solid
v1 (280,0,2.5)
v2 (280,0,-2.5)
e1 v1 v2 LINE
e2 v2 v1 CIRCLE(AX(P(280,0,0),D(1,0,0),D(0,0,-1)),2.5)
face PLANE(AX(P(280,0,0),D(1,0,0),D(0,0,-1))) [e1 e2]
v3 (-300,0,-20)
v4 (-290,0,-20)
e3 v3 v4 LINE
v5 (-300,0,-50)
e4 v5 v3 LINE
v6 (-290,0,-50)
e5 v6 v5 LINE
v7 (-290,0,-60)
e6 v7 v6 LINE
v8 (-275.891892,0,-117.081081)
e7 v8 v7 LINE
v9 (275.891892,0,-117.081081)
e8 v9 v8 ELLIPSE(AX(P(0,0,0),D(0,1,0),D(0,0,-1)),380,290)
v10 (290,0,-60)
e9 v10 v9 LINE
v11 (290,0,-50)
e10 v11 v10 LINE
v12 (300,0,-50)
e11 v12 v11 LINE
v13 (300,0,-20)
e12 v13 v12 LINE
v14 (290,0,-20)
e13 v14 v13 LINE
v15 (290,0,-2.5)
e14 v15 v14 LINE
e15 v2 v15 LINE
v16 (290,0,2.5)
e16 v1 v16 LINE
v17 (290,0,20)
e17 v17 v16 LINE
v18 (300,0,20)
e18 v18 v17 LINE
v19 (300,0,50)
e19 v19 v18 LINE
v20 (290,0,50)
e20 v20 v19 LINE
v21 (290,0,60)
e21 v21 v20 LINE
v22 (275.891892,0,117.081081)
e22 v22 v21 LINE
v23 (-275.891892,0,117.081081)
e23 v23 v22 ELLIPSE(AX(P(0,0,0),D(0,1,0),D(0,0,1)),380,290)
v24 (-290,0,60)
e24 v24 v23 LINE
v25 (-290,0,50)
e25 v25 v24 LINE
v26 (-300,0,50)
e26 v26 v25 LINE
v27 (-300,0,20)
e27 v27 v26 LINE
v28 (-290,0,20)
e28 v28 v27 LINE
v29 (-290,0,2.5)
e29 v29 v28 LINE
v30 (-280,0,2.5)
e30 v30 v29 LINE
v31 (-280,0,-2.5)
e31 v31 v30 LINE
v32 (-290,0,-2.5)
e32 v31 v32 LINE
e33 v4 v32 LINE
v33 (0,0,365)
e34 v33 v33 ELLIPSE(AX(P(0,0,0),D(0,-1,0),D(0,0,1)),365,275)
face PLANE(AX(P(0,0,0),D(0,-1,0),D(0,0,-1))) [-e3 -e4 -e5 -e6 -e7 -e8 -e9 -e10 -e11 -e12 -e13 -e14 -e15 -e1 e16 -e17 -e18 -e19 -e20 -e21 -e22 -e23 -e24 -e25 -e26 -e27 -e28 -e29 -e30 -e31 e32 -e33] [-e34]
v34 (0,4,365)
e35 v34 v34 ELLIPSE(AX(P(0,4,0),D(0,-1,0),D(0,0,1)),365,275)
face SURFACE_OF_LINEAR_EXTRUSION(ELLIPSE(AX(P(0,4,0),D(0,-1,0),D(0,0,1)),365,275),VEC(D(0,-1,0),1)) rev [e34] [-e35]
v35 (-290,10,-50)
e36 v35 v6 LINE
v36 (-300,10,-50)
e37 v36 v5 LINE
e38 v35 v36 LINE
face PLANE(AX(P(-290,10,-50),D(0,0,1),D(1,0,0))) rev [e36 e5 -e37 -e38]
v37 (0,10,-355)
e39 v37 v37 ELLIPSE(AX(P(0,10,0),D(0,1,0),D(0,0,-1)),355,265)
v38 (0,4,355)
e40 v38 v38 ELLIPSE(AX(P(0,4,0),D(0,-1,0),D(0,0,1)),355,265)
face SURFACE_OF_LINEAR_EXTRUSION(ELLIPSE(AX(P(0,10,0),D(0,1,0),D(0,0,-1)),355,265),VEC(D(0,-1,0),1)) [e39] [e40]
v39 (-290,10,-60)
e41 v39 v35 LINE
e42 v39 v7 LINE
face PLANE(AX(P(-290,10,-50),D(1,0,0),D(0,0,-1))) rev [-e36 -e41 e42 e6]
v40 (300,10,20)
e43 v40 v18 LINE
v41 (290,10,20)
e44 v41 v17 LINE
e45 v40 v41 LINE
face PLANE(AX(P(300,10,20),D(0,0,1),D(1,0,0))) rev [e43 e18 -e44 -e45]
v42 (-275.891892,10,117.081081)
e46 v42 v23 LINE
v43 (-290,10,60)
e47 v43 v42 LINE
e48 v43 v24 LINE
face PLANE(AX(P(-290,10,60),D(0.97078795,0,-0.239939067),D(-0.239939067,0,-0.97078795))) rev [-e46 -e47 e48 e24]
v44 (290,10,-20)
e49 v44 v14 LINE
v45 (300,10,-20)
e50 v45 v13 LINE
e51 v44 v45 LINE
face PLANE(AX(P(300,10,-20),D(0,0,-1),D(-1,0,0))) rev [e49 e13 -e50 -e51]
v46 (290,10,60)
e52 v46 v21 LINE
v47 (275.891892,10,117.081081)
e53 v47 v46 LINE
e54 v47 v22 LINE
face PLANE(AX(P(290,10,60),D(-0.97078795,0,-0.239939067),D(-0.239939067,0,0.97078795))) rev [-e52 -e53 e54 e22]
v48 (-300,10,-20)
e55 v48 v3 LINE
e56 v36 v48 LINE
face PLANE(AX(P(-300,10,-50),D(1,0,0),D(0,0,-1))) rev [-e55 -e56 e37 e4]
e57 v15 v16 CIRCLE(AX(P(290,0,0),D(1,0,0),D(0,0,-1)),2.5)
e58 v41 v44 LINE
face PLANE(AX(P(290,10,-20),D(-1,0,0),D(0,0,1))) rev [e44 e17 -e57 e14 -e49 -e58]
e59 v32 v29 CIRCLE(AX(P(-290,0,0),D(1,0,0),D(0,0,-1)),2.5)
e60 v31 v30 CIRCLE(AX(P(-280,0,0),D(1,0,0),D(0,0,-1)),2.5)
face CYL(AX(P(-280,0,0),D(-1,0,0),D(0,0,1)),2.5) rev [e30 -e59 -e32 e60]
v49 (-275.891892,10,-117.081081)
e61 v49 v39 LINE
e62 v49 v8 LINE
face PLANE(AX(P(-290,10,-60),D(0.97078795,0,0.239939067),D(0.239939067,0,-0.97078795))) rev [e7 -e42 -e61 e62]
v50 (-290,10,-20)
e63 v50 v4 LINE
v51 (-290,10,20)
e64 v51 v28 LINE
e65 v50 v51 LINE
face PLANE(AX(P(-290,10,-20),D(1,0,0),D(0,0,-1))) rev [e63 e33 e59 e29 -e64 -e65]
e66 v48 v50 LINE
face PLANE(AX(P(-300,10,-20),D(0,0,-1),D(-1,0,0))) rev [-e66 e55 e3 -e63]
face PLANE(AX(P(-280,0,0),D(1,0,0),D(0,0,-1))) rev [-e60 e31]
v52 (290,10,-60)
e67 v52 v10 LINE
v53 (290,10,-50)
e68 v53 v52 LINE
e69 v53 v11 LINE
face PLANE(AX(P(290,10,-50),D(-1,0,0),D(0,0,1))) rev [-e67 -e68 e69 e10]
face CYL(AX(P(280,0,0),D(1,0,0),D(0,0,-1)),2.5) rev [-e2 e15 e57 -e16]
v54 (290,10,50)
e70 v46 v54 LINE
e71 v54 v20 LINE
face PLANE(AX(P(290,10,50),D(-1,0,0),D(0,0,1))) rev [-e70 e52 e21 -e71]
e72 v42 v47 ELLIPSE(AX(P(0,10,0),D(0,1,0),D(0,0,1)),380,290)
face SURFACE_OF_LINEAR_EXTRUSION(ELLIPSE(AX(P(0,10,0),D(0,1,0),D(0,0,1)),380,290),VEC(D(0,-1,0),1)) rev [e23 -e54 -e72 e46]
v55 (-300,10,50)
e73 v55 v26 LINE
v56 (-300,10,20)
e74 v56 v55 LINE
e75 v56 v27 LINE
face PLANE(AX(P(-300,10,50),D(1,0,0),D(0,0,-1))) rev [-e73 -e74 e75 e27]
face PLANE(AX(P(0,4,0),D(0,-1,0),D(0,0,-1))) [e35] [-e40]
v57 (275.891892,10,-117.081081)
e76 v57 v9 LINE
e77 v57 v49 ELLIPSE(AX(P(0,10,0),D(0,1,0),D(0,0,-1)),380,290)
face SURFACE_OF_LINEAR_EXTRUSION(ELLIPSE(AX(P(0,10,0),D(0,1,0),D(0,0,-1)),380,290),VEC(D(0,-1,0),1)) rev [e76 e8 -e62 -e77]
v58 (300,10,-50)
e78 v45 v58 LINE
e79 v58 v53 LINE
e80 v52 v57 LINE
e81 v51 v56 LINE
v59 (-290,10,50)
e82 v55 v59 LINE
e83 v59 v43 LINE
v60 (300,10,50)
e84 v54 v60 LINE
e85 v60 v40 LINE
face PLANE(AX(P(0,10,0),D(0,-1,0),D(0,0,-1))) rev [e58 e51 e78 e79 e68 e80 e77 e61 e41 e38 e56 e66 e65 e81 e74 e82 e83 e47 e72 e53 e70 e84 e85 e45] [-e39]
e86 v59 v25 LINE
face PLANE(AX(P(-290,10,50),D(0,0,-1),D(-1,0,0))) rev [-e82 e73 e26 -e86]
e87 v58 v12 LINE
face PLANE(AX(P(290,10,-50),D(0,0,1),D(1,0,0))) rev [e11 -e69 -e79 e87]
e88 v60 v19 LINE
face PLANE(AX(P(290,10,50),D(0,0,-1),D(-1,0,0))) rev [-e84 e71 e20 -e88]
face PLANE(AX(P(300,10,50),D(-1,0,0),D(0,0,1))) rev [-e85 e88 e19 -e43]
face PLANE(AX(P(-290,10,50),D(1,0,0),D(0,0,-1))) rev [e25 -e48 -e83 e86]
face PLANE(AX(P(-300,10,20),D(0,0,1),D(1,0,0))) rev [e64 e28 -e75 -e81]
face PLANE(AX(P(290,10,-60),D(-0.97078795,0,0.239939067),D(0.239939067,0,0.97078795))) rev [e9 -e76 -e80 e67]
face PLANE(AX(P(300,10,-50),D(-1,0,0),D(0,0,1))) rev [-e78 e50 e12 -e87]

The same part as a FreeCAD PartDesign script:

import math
import FreeCAD as App
import Part
import Sketcher

doc = App.newDocument("Part")
body = doc.addObject("PartDesign::Body", "Body")

sketch1 = body.newObject("Sketcher::SketchObject", "Sketch")
sketch1.AttachmentSupport = (doc.getObject("XZ_Plane"), [""])
sketch1.MapMode = "FlatFace"
sketch1.addGeometry([
    Part.LineSegment(App.Vector(-275.891892, -117.081081, 0), App.Vector(-290, -60, 0)),
    Part.LineSegment(App.Vector(-290, -60, 0), App.Vector(-290, -50, 0)),
    Part.LineSegment(App.Vector(-290, -50, 0), App.Vector(-300, -50, 0)),
    Part.LineSegment(App.Vector(-300, -50, 0), App.Vector(-300, -20, 0)),
    Part.LineSegment(App.Vector(-300, -20, 0), App.Vector(-290, -20, 0)),
    Part.LineSegment(App.Vector(-290, -20, 0), App.Vector(-290, 20, 0)),
    Part.LineSegment(App.Vector(-290, 20, 0), App.Vector(-300, 20, 0)),
    Part.LineSegment(App.Vector(-300, 20, 0), App.Vector(-300, 50, 0)),
    Part.LineSegment(App.Vector(-300, 50, 0), App.Vector(-290, 50, 0)),
    Part.LineSegment(App.Vector(-290, 50, 0), App.Vector(-290, 60, 0)),
    Part.LineSegment(App.Vector(-290, 60, 0), App.Vector(-275.891892, 117.081081, 0)),
    Part.BSplineCurve([App.Vector(-275.891892, 117.081081, 0), App.Vector(0, 1233.333333, 0), App.Vector(275.891892, 117.081081, 0)], [3, 3], [5.025592734, 7.54077788], False, 2, [1, 0.308108108, 1], False),
    Part.LineSegment(App.Vector(275.891892, 117.081081, 0), App.Vector(290, 60, 0)),
    Part.LineSegment(App.Vector(290, 60, 0), App.Vector(290, 50, 0)),
    Part.LineSegment(App.Vector(290, 50, 0), App.Vector(300, 50, 0)),
    Part.LineSegment(App.Vector(300, 50, 0), App.Vector(300, 20, 0)),
    Part.LineSegment(App.Vector(300, 20, 0), App.Vector(290, 20, 0)),
    Part.LineSegment(App.Vector(290, 20, 0), App.Vector(290, -20, 0)),
    Part.LineSegment(App.Vector(290, -20, 0), App.Vector(300, -20, 0)),
    Part.LineSegment(App.Vector(300, -20, 0), App.Vector(300, -50, 0)),
    Part.LineSegment(App.Vector(300, -50, 0), App.Vector(290, -50, 0)),
    Part.LineSegment(App.Vector(290, -50, 0), App.Vector(290, -60, 0)),
    Part.LineSegment(App.Vector(290, -60, 0), App.Vector(275.891892, -117.081081, 0)),
    Part.BSplineCurve([App.Vector(275.891892, -117.081081, 0), App.Vector(0, -1233.333333, 0), App.Vector(-275.891892, -117.081081, 0)], [3, 3], [5.025592734, 7.54077788], False, 2, [1, 0.308108108, 1], False),
    Part.Ellipse(App.Vector(0, -355, 0), App.Vector(265, 0, 0), App.Vector(0, 0, 0)),
], False)
sketch1.addConstraint([
    Sketcher.Constraint("Block", 11),
    Sketcher.Constraint("Block", 23),
    Sketcher.Constraint("Block", 24),
    Sketcher.Constraint("Coincident", 0, 2, 1, 1),
    Sketcher.Constraint("Coincident", 1, 2, 2, 1),
    Sketcher.Constraint("Coincident", 2, 2, 3, 1),
    Sketcher.Constraint("Coincident", 3, 2, 4, 1),
    Sketcher.Constraint("Coincident", 4, 2, 5, 1),
    Sketcher.Constraint("Coincident", 5, 2, 6, 1),
    Sketcher.Constraint("Coincident", 6, 2, 7, 1),
    Sketcher.Constraint("Coincident", 7, 2, 8, 1),
    Sketcher.Constraint("Coincident", 8, 2, 9, 1),
    Sketcher.Constraint("Coincident", 9, 2, 10, 1),
    Sketcher.Constraint("Coincident", 10, 2, 11, 1),
    Sketcher.Constraint("Coincident", 11, 2, 12, 1),
    Sketcher.Constraint("Coincident", 12, 2, 13, 1),
    Sketcher.Constraint("Coincident", 13, 2, 14, 1),
    Sketcher.Constraint("Coincident", 14, 2, 15, 1),
    Sketcher.Constraint("Coincident", 15, 2, 16, 1),
    Sketcher.Constraint("Coincident", 16, 2, 17, 1),
    Sketcher.Constraint("Coincident", 17, 2, 18, 1),
    Sketcher.Constraint("Coincident", 18, 2, 19, 1),
    Sketcher.Constraint("Coincident", 19, 2, 20, 1),
    Sketcher.Constraint("Coincident", 20, 2, 21, 1),
    Sketcher.Constraint("Coincident", 21, 2, 22, 1),
    Sketcher.Constraint("Coincident", 22, 2, 23, 1),
    Sketcher.Constraint("Coincident", 23, 2, 0, 1),
    Sketcher.Constraint("Vertical", 1),
    Sketcher.Constraint("Horizontal", 2),
    Sketcher.Constraint("Vertical", 3),
    Sketcher.Constraint("Horizontal", 4),
    Sketcher.Constraint("Vertical", 5),
    Sketcher.Constraint("Horizontal", 6),
    Sketcher.Constraint("Vertical", 7),
    Sketcher.Constraint("Horizontal", 8),
    Sketcher.Constraint("Vertical", 9),
    Sketcher.Constraint("Vertical", 13),
    Sketcher.Constraint("Horizontal", 14),
    Sketcher.Constraint("Vertical", 15),
    Sketcher.Constraint("Horizontal", 16),
    Sketcher.Constraint("Vertical", 17),
    Sketcher.Constraint("Horizontal", 18),
    Sketcher.Constraint("Vertical", 19),
    Sketcher.Constraint("Horizontal", 20),
    Sketcher.Constraint("Vertical", 21),
    Sketcher.Constraint("Symmetric", 0, 2, 12, 2, -1, 1),
    Sketcher.Constraint("Symmetric", 2, 2, 14, 2, -1, 1),
    Sketcher.Constraint("Symmetric", 4, 2, 16, 2, -1, 1),
    Sketcher.Constraint("Symmetric", 6, 2, 18, 2, -1, 1),
    Sketcher.Constraint("Symmetric", 8, 2, 20, 2, -1, 1),
    Sketcher.Constraint("Symmetric", 9, 2, 12, 2, -2),
    Sketcher.Constraint("Symmetric", 7, 2, 14, 2, -2),
    Sketcher.Constraint("Parallel", 10, 22),
    Sketcher.Constraint("Horizontal", 6, 2, 15, 2),
    Sketcher.Constraint("Vertical", 1, 2, 4, 2),
    Sketcher.Constraint("Equal", 20, 1),
    Sketcher.Constraint("DistanceX", 2, 2, 2, 1, 10.0),
    Sketcher.Constraint("DistanceY", 3, 1, 3, 2, 30.0),
    Sketcher.Constraint("DistanceY", 5, 1, 5, 2, 40.0),
    Sketcher.Constraint("DistanceX", 0, 2, -1, 1, 290.0),
])
pad1 = body.newObject("PartDesign::Pad", "Pad")
pad1.Profile = sketch1
pad1.Length = 10
pad1.Reversed = True

sketch2 = body.newObject("Sketcher::SketchObject", "Sketch001")
sketch2.AttachmentSupport = (doc.getObject("XZ_Plane"), [""])
sketch2.MapMode = "FlatFace"
sketch2.addGeometry([
    Part.Ellipse(App.Vector(0, 365, 0), App.Vector(-275, 0, 0), App.Vector(0, 0, 0)),
    Part.Ellipse(App.Vector(0, 355, 0), App.Vector(-265, 0, 0), App.Vector(0, 0, 0)),
], False)
sketch2.addConstraint([
    Sketcher.Constraint("Block", 0),
    Sketcher.Constraint("Block", 1),
])
pocket1 = body.newObject("PartDesign::Pocket", "Pocket")
pocket1.Profile = sketch2
pocket1.Length = 4

sketch3 = body.newObject("Sketcher::SketchObject", "Sketch002")
sketch3.AttachmentSupport = (doc.getObject("YZ_Plane"), [""])
sketch3.MapMode = "FlatFace"
sketch3.AttachmentOffset = App.Placement(App.Vector(0, 0, -290), App.Rotation())
sketch3.addGeometry([
    Part.LineSegment(App.Vector(0, -2.5, 0), App.Vector(0, 2.5, 0)),
    Part.ArcOfCircle(Part.Circle(App.Vector(0, 0, 0), App.Vector(0, 0, 1), 2.5), math.radians(-90), math.radians(90)),
], False)
sketch3.addConstraint([
    Sketcher.Constraint("Coincident", 0, 1, 1, 1),
    Sketcher.Constraint("Coincident", 1, 2, 0, 2),
    Sketcher.Constraint("Vertical", 0),
    Sketcher.Constraint("Coincident", 1, 3, -1, 1),
    Sketcher.Constraint("PointOnObject", 0, 1, -2),
    Sketcher.Constraint("Radius", 1, 2.5),
])
pocket2 = body.newObject("PartDesign::Pocket", "Pocket001")
pocket2.Profile = sketch3
pocket2.Length = 10
pocket2.Reversed = True

sketch4 = body.newObject("Sketcher::SketchObject", "Sketch003")
sketch4.AttachmentSupport = (doc.getObject("YZ_Plane"), [""])
sketch4.MapMode = "FlatFace"
sketch4.AttachmentOffset = App.Placement(App.Vector(0, 0, 290), App.Rotation())
sketch4.addGeometry([
    Part.LineSegment(App.Vector(0, 2.5, 0), App.Vector(0, -2.5, 0)),
    Part.ArcOfCircle(Part.Circle(App.Vector(0, 0, 0), App.Vector(0, 0, 1), 2.5), math.radians(-90), math.radians(90)),
], False)
sketch4.addConstraint([
    Sketcher.Constraint("Coincident", 0, 1, 1, 2),
    Sketcher.Constraint("Coincident", 1, 1, 0, 2),
    Sketcher.Constraint("Vertical", 0),
    Sketcher.Constraint("Coincident", 1, 3, -1, 1),
    Sketcher.Constraint("PointOnObject", 0, 1, -2),
    Sketcher.Constraint("Radius", 1, 2.5),
])
pocket3 = body.newObject("PartDesign::Pocket", "Pocket002")
pocket3.Profile = sketch4
pocket3.Length = 10

doc.recompute()
